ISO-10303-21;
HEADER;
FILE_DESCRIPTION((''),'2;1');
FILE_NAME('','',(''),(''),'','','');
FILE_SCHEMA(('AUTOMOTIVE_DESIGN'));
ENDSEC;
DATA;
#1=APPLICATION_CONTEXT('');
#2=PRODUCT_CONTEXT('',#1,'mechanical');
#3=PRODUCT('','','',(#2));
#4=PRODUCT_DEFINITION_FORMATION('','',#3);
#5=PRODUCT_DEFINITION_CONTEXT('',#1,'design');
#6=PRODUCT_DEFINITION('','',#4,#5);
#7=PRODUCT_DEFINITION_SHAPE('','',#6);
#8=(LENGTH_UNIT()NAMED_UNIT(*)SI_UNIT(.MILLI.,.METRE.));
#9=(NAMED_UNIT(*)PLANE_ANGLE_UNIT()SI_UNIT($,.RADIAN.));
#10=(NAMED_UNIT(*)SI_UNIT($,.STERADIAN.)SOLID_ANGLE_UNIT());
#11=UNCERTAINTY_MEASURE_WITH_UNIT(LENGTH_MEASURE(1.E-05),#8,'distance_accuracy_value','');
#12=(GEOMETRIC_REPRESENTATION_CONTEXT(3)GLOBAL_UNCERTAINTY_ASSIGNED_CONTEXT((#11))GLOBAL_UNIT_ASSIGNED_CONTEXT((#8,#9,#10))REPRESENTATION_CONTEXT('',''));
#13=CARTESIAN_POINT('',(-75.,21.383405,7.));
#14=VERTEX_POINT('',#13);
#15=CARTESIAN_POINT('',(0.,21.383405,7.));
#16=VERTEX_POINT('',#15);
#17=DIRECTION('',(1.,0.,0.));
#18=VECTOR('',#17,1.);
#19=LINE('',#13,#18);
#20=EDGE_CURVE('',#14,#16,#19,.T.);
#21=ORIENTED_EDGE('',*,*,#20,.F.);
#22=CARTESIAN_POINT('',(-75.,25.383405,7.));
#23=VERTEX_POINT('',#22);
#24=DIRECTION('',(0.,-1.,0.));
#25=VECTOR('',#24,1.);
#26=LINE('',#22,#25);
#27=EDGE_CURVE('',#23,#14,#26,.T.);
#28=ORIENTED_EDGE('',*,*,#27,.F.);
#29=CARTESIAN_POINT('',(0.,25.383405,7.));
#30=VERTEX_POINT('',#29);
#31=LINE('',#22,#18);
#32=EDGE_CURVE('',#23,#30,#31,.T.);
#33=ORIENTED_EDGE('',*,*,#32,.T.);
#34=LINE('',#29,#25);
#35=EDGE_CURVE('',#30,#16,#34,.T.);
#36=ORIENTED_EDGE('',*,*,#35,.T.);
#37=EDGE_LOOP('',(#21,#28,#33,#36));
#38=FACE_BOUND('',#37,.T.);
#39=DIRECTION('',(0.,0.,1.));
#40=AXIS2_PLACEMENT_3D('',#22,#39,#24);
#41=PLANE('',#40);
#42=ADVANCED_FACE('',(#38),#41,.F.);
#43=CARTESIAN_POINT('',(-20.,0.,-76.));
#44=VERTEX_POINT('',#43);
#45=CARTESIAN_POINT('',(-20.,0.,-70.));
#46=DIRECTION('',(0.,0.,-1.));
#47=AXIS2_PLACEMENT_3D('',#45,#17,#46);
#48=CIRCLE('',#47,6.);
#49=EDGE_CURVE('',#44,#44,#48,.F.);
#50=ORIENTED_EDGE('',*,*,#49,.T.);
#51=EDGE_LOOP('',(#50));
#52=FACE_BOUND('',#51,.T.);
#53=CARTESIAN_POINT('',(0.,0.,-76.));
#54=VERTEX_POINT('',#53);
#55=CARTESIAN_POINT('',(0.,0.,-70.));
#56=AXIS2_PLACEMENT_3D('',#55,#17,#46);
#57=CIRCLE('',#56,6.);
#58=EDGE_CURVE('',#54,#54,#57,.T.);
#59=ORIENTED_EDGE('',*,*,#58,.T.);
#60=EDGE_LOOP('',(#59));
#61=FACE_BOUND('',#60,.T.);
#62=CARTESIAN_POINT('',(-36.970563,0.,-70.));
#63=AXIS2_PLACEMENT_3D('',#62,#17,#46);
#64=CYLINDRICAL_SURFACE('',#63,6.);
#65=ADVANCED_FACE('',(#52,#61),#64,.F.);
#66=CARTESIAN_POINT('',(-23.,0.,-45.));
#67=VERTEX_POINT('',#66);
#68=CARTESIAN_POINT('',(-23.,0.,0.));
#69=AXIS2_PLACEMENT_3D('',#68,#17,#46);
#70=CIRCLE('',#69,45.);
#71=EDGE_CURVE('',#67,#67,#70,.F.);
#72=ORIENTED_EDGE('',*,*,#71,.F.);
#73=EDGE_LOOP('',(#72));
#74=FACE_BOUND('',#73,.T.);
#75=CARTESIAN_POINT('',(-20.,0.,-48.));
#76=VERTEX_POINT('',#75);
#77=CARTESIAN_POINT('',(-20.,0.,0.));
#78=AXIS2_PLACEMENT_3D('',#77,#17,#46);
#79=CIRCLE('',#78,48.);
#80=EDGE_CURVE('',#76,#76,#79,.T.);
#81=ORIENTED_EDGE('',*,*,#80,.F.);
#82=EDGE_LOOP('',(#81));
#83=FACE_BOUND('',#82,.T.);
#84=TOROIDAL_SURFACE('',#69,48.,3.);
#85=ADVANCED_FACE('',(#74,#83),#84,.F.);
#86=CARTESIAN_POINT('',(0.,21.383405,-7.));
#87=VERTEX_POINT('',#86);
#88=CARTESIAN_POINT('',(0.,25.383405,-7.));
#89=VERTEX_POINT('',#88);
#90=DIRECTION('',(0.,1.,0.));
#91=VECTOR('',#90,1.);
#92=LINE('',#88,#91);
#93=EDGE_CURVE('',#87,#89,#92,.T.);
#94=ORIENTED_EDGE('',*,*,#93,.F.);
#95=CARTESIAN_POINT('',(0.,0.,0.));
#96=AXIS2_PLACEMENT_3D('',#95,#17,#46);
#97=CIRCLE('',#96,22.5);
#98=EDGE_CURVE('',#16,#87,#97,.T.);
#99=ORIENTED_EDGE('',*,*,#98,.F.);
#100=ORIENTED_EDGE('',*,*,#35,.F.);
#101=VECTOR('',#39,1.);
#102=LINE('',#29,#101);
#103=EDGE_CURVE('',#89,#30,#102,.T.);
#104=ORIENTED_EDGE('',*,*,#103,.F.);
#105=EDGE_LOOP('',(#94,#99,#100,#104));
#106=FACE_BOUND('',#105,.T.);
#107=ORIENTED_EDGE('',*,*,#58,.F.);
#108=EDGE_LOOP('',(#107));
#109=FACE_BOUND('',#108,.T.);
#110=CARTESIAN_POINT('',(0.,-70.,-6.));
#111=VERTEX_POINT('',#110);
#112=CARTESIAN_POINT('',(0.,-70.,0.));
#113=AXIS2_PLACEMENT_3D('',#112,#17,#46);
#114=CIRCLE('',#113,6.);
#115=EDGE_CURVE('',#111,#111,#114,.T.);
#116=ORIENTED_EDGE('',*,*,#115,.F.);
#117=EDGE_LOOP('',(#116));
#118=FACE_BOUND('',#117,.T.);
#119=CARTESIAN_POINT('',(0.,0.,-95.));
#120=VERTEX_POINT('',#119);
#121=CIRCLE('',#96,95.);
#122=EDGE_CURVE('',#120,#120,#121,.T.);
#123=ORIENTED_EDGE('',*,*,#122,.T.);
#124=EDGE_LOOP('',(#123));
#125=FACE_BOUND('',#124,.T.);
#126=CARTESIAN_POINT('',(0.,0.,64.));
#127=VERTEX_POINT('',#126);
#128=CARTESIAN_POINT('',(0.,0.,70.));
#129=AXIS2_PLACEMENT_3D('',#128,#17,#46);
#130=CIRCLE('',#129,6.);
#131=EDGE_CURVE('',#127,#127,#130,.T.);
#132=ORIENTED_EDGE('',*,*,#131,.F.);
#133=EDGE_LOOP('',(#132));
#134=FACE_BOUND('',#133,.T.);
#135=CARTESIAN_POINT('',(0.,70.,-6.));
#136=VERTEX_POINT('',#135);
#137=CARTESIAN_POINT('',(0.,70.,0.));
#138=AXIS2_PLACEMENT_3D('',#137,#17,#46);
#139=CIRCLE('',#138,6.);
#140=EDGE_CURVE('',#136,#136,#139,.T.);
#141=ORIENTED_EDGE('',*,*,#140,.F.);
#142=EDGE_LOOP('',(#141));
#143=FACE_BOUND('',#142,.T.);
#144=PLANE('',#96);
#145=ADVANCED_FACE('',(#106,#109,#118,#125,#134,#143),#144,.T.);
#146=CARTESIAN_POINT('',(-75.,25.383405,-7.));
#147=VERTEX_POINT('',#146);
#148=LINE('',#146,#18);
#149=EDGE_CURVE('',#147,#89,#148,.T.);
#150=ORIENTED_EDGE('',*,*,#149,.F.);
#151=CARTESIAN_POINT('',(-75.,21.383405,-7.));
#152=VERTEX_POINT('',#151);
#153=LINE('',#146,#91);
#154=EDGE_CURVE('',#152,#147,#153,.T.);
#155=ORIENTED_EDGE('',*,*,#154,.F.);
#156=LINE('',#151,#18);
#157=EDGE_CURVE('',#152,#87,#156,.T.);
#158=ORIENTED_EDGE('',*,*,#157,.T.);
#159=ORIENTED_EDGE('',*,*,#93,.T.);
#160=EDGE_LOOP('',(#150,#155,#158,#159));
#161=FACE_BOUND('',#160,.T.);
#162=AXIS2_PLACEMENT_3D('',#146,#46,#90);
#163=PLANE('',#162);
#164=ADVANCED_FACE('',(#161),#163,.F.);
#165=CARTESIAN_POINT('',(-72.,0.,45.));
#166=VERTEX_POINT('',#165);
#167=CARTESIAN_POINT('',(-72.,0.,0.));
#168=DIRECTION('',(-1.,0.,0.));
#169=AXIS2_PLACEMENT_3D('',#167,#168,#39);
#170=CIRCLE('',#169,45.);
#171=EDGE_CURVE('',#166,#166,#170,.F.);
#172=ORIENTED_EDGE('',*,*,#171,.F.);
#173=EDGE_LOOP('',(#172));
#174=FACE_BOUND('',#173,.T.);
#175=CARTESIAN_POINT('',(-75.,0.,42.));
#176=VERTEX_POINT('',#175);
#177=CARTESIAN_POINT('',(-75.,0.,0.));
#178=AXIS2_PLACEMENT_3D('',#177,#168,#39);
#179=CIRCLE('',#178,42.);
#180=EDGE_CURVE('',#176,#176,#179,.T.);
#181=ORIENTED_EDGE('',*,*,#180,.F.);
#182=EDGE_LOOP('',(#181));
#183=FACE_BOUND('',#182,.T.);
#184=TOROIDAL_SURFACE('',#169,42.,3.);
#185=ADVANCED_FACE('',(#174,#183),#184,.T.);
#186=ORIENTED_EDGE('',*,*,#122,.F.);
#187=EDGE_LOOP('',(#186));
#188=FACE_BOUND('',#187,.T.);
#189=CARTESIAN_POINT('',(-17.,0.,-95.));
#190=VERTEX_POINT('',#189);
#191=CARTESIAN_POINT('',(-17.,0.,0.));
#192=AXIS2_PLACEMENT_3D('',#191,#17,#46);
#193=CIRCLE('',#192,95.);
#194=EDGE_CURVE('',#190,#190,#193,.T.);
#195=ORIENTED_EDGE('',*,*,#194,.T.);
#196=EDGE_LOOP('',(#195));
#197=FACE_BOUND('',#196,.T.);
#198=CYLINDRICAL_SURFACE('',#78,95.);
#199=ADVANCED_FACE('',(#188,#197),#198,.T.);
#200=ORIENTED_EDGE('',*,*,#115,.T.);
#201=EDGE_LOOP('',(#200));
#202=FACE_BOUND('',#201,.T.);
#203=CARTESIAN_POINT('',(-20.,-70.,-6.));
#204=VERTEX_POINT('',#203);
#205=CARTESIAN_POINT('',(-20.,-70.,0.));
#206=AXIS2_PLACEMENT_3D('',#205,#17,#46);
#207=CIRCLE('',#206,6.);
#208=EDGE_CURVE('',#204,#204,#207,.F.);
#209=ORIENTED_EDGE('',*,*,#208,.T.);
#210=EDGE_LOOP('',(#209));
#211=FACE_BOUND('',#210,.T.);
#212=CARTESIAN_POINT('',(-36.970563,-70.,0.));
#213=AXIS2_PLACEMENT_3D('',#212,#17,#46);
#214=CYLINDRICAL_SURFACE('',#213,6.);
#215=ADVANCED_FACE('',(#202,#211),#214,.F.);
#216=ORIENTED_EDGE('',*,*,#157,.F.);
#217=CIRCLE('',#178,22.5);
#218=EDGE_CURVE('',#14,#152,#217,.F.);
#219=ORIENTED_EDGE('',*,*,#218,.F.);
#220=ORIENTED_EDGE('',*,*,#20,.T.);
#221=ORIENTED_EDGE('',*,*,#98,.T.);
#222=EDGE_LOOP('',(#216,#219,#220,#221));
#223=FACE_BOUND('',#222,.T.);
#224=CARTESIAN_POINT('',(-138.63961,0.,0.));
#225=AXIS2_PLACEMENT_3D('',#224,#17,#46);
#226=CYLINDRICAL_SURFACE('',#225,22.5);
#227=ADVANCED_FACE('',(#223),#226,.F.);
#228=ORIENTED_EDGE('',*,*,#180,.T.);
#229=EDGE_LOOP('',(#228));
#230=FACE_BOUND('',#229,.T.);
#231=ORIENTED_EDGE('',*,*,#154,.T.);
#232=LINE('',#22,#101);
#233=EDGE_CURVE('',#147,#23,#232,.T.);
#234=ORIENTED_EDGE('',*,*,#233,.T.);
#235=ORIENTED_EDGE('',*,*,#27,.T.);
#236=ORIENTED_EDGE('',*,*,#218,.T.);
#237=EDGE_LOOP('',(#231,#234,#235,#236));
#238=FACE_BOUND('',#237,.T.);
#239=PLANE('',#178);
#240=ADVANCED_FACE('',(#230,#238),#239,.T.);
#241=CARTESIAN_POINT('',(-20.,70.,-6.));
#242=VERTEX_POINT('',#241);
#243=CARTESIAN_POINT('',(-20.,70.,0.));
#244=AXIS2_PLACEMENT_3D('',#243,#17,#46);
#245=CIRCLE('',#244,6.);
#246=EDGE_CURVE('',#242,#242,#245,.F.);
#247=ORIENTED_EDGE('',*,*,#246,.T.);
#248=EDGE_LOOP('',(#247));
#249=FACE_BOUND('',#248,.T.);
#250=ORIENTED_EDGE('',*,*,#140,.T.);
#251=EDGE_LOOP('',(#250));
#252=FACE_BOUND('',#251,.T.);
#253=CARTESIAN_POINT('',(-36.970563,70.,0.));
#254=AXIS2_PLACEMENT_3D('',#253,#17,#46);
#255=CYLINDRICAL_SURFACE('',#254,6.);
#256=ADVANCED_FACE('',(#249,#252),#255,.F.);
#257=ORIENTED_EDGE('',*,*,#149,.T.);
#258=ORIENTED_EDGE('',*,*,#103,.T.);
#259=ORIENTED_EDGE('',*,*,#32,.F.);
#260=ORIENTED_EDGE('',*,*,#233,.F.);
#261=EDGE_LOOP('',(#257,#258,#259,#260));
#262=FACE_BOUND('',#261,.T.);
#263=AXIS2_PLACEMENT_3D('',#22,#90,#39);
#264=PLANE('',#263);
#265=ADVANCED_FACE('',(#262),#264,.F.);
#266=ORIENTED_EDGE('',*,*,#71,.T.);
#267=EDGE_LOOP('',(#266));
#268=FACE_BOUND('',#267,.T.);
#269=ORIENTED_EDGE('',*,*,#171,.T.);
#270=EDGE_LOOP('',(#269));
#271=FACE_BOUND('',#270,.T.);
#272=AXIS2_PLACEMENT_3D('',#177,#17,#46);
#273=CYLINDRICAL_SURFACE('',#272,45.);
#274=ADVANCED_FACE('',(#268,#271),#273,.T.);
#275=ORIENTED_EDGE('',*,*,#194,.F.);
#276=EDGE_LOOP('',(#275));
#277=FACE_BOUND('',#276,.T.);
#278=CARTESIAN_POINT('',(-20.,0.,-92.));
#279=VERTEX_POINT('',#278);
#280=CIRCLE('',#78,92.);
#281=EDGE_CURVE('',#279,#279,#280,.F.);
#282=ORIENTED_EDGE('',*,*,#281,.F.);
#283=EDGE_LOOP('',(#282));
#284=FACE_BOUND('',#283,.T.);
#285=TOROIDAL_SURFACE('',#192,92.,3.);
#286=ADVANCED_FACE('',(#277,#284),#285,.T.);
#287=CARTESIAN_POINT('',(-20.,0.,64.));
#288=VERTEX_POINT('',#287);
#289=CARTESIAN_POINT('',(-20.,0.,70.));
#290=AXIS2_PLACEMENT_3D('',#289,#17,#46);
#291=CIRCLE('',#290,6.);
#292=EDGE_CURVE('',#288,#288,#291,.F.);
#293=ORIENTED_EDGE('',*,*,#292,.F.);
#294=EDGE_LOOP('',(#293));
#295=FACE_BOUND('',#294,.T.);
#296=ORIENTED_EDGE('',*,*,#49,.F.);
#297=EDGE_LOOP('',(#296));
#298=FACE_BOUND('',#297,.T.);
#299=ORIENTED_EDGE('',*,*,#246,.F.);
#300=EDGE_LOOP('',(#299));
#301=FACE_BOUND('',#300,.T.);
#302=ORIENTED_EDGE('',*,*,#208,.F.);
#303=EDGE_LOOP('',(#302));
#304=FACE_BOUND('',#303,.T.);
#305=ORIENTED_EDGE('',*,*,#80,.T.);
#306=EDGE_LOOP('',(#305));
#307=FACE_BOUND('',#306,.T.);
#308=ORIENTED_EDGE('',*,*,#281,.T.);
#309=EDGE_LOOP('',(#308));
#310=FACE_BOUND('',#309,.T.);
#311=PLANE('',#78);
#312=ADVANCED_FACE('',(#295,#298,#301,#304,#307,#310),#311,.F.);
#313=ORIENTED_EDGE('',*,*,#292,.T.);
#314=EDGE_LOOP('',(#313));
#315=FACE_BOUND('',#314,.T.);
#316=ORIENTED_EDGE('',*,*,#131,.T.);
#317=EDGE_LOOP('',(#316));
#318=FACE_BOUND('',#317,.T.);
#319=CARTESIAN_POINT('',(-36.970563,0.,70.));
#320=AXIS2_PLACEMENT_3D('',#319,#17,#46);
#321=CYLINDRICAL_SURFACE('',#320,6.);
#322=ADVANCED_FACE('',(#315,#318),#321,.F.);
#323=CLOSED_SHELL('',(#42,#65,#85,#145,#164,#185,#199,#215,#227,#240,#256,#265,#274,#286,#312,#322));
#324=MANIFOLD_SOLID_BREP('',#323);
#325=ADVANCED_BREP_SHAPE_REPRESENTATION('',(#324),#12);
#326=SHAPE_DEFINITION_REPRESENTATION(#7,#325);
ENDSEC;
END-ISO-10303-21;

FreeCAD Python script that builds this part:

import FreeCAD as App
import Part
import Sketcher

V = App.Vector


def edges_at(feature, points):
    """Names of the edges that pass closest to the given points."""
    edges = feature.Shape.Edges
    near = lambda p: min(range(len(edges)), key=lambda i: edges[i].distToShape(Part.Vertex(*p))[0])
    return sorted({f"Edge{near(p) + 1}" for p in points})

doc = App.newDocument("Part")
params = doc.addObject("Spreadsheet::Sheet", "Params")
for row, (alias, value) in enumerate([
    ("sketch1_diameter", "190 mm"),
    ("pad1_length", "20 mm"),
    ("sketch2_diameter", "90 mm"),
    ("pad2_length", "55 mm"),
    ("sketch3_diameter", "45 mm"),
    ("pocket1_length", "75 mm"),
    ("sketch4_diameter", "12 mm"),
    ("pocket2_length", "20 mm"),
    ("sketch5_width", "4 mm"),
    ("sketch5_height", "14 mm"),
    ("fillet_radius", "3 mm"),
], start=1):
    params.set(f"A{row}", alias)
    params.set(f"B{row}", "=" + value)
    params.setAlias(f"B{row}", alias)

body = doc.addObject("PartDesign::Body", "Body")

# Sketch on YZ plane
sketch1 = body.newObject("Sketcher::SketchObject", "Sketch")
sketch1.AttachmentSupport = (doc.getObject("YZ_Plane"), [""])
sketch1.MapMode = "FlatFace"
sketch1.addGeometry(Part.Circle(V(0, 0, 0), V(0, 0, 1), 95), False)
sketch1.addConstraint([
    Sketcher.Constraint("Coincident", 0, 3, -1, 1),
    Sketcher.Constraint("Diameter", 0, 190.0),
])
sketch1.setExpression("Constraints[1]", "Params.sketch1_diameter")
pad1 = body.newObject("PartDesign::Pad", "Pad")
pad1.Profile = sketch1
pad1.setExpression("Length", "Params.pad1_length")
pad1.Reversed = True

# Sketch on YZ plane
sketch2 = body.newObject("Sketcher::SketchObject", "Sketch001")
sketch2.AttachmentSupport = (doc.getObject("YZ_Plane"), [""])
sketch2.MapMode = "FlatFace"
sketch2.AttachmentOffset = App.Placement(V(0, 0, -20), App.Rotation())
sketch2.addGeometry(Part.Circle(V(0, 0, 0), V(0, 0, 1), 45), False)
sketch2.addConstraint([
    Sketcher.Constraint("Coincident", 0, 3, -1, 1),
    Sketcher.Constraint("Diameter", 0, 90.0),
])
sketch2.setExpression("Constraints[1]", "Params.sketch2_diameter")
pad2 = body.newObject("PartDesign::Pad", "Pad001")
pad2.Profile = sketch2
pad2.setExpression("Length", "Params.pad2_length")
pad2.Reversed = True

# Sketch on YZ plane
sketch3 = body.newObject("Sketcher::SketchObject", "Sketch002")
sketch3.AttachmentSupport = (doc.getObject("YZ_Plane"), [""])
sketch3.MapMode = "FlatFace"
sketch3.addGeometry(Part.Circle(V(0, 0, 0), V(0, 0, 1), 22.5), False)
sketch3.addConstraint([
    Sketcher.Constraint("Coincident", 0, 3, -1, 1),
    Sketcher.Constraint("Diameter", 0, 45.0),
])
sketch3.setExpression("Constraints[1]", "Params.sketch3_diameter")
pocket1 = body.newObject("PartDesign::Pocket", "Pocket")
pocket1.Profile = sketch3
pocket1.setExpression("Length", "Params.pocket1_length")

# Sketch on YZ plane
sketch4 = body.newObject("Sketcher::SketchObject", "Sketch003")
sketch4.AttachmentSupport = (doc.getObject("YZ_Plane"), [""])
sketch4.MapMode = "FlatFace"
sketch4.addGeometry([
    Part.Circle(V(70, 0, 0), V(0, 0, 1), 6),
    Part.Circle(V(0, -70, 0), V(0, 0, 1), 6),
    Part.Circle(V(-70, 0, 0), V(0, 0, 1), 6),
    Part.Circle(V(0, 70, 0), V(0, 0, 1), 6),
], False)
sketch4.addConstraint([
    Sketcher.Constraint("Equal", 0, 1),
    Sketcher.Constraint("Equal", 1, 2),
    Sketcher.Constraint("Equal", 2, 3),
    Sketcher.Constraint("Symmetric", 0, 3, 2, 3, -1, 1),
    Sketcher.Constraint("Symmetric", 1, 3, 3, 3, -1, 1),
    Sketcher.Constraint("PointOnObject", 0, 3, -1),
    Sketcher.Constraint("PointOnObject", 1, 3, -2),
    Sketcher.Constraint("Diameter", 0, 12.0),
    Sketcher.Constraint("DistanceX", -1, 1, 0, 3, 70.0),
    Sketcher.Constraint("DistanceY", 1, 3, -1, 1, 70.0),
])
sketch4.setExpression("Constraints[7]", "Params.sketch4_diameter")
pocket2 = body.newObject("PartDesign::Pocket", "Pocket001")
pocket2.Profile = sketch4
pocket2.setExpression("Length", "Params.pocket2_length")

# Sketch on YZ plane
sketch5 = body.newObject("Sketcher::SketchObject", "Sketch004")
sketch5.AttachmentSupport = (doc.getObject("YZ_Plane"), [""])
sketch5.MapMode = "FlatFace"
sketch5.addGeometry([
    Part.LineSegment(V(25.383405, 7, 0), V(21.383405, 7, 0)),
    Part.LineSegment(V(21.383405, 7, 0), V(21.383405, -7, 0)),
    Part.LineSegment(V(21.383405, -7, 0), V(25.383405, -7, 0)),
    Part.LineSegment(V(25.383405, -7, 0), V(25.383405, 7, 0)),
], False)
sketch5.addConstraint([
    Sketcher.Constraint("Coincident", 0, 2, 1, 1),
    Sketcher.Constraint("Coincident", 1, 2, 2, 1),
    Sketcher.Constraint("Coincident", 2, 2, 3, 1),
    Sketcher.Constraint("Coincident", 3, 2, 0, 1),
    Sketcher.Constraint("Horizontal", 0),
    Sketcher.Constraint("Vertical", 1),
    Sketcher.Constraint("Horizontal", 2),
    Sketcher.Constraint("Vertical", 3),
    Sketcher.Constraint("DistanceX", 0, 2, 0, 1, 4.0),
    Sketcher.Constraint("DistanceY", 1, 2, 1, 1, 14.0),
    Sketcher.Constraint("DistanceY", -1, 1, 0, 2, 7.0),
    Sketcher.Constraint("DistanceX", -1, 1, 0, 2, 21.383405),
])
sketch5.setExpression("Constraints[8]", "Params.sketch5_width")
sketch5.setExpression("Constraints[9]", "Params.sketch5_height")
pocket3 = body.newObject("PartDesign::Pocket", "Pocket002")
pocket3.Profile = sketch5
pocket3.Type = "ThroughAll"
doc.recompute()

fillet = body.newObject("PartDesign::Fillet", "Fillet")
fillet.Base = (pocket3, edges_at(pocket3, [(-20, 0, 95), (-20, 0, -45), (-75, 0, -45)]))
fillet.setExpression("Radius", "Params.fillet_radius")

doc.recompute()
